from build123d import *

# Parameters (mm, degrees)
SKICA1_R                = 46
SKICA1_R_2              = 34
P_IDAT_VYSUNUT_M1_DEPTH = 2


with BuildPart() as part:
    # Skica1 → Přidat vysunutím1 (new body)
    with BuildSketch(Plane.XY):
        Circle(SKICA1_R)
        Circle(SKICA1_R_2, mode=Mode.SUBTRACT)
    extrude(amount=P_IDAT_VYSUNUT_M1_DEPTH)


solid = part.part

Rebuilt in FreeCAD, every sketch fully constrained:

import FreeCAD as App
import Part
import Sketcher

V = App.Vector
Q = App.Units.Quantity

doc = App.newDocument("Part")
body = doc.addObject("PartDesign::Body", "Body")

sketch1 = body.newObject("Sketcher::SketchObject", "Sketch")
sketch1.AttachmentSupport = (doc.getObject("XY_Plane"), [""])
sketch1.MapMode = "FlatFace"
sketch1.addGeometry([
    Part.Circle(V(0, 0, 0), V(0, 0, 1), 46),
    Part.Circle(V(0, 0, 0), V(0, 0, 1), 34),
], False)
sketch1.addConstraint([
    Sketcher.Constraint("Coincident", 0, 3, -1, 1),
    Sketcher.Constraint("Coincident", 1, 3, -1, 1),
    Sketcher.Constraint("Diameter", 0, Q("92 mm")),
    Sketcher.Constraint("Diameter", 1, Q("68 mm")),
])
pad1 = body.newObject("PartDesign::Pad", "Pad")
pad1.Profile = sketch1
pad1.Length = 2

doc.recompute()
